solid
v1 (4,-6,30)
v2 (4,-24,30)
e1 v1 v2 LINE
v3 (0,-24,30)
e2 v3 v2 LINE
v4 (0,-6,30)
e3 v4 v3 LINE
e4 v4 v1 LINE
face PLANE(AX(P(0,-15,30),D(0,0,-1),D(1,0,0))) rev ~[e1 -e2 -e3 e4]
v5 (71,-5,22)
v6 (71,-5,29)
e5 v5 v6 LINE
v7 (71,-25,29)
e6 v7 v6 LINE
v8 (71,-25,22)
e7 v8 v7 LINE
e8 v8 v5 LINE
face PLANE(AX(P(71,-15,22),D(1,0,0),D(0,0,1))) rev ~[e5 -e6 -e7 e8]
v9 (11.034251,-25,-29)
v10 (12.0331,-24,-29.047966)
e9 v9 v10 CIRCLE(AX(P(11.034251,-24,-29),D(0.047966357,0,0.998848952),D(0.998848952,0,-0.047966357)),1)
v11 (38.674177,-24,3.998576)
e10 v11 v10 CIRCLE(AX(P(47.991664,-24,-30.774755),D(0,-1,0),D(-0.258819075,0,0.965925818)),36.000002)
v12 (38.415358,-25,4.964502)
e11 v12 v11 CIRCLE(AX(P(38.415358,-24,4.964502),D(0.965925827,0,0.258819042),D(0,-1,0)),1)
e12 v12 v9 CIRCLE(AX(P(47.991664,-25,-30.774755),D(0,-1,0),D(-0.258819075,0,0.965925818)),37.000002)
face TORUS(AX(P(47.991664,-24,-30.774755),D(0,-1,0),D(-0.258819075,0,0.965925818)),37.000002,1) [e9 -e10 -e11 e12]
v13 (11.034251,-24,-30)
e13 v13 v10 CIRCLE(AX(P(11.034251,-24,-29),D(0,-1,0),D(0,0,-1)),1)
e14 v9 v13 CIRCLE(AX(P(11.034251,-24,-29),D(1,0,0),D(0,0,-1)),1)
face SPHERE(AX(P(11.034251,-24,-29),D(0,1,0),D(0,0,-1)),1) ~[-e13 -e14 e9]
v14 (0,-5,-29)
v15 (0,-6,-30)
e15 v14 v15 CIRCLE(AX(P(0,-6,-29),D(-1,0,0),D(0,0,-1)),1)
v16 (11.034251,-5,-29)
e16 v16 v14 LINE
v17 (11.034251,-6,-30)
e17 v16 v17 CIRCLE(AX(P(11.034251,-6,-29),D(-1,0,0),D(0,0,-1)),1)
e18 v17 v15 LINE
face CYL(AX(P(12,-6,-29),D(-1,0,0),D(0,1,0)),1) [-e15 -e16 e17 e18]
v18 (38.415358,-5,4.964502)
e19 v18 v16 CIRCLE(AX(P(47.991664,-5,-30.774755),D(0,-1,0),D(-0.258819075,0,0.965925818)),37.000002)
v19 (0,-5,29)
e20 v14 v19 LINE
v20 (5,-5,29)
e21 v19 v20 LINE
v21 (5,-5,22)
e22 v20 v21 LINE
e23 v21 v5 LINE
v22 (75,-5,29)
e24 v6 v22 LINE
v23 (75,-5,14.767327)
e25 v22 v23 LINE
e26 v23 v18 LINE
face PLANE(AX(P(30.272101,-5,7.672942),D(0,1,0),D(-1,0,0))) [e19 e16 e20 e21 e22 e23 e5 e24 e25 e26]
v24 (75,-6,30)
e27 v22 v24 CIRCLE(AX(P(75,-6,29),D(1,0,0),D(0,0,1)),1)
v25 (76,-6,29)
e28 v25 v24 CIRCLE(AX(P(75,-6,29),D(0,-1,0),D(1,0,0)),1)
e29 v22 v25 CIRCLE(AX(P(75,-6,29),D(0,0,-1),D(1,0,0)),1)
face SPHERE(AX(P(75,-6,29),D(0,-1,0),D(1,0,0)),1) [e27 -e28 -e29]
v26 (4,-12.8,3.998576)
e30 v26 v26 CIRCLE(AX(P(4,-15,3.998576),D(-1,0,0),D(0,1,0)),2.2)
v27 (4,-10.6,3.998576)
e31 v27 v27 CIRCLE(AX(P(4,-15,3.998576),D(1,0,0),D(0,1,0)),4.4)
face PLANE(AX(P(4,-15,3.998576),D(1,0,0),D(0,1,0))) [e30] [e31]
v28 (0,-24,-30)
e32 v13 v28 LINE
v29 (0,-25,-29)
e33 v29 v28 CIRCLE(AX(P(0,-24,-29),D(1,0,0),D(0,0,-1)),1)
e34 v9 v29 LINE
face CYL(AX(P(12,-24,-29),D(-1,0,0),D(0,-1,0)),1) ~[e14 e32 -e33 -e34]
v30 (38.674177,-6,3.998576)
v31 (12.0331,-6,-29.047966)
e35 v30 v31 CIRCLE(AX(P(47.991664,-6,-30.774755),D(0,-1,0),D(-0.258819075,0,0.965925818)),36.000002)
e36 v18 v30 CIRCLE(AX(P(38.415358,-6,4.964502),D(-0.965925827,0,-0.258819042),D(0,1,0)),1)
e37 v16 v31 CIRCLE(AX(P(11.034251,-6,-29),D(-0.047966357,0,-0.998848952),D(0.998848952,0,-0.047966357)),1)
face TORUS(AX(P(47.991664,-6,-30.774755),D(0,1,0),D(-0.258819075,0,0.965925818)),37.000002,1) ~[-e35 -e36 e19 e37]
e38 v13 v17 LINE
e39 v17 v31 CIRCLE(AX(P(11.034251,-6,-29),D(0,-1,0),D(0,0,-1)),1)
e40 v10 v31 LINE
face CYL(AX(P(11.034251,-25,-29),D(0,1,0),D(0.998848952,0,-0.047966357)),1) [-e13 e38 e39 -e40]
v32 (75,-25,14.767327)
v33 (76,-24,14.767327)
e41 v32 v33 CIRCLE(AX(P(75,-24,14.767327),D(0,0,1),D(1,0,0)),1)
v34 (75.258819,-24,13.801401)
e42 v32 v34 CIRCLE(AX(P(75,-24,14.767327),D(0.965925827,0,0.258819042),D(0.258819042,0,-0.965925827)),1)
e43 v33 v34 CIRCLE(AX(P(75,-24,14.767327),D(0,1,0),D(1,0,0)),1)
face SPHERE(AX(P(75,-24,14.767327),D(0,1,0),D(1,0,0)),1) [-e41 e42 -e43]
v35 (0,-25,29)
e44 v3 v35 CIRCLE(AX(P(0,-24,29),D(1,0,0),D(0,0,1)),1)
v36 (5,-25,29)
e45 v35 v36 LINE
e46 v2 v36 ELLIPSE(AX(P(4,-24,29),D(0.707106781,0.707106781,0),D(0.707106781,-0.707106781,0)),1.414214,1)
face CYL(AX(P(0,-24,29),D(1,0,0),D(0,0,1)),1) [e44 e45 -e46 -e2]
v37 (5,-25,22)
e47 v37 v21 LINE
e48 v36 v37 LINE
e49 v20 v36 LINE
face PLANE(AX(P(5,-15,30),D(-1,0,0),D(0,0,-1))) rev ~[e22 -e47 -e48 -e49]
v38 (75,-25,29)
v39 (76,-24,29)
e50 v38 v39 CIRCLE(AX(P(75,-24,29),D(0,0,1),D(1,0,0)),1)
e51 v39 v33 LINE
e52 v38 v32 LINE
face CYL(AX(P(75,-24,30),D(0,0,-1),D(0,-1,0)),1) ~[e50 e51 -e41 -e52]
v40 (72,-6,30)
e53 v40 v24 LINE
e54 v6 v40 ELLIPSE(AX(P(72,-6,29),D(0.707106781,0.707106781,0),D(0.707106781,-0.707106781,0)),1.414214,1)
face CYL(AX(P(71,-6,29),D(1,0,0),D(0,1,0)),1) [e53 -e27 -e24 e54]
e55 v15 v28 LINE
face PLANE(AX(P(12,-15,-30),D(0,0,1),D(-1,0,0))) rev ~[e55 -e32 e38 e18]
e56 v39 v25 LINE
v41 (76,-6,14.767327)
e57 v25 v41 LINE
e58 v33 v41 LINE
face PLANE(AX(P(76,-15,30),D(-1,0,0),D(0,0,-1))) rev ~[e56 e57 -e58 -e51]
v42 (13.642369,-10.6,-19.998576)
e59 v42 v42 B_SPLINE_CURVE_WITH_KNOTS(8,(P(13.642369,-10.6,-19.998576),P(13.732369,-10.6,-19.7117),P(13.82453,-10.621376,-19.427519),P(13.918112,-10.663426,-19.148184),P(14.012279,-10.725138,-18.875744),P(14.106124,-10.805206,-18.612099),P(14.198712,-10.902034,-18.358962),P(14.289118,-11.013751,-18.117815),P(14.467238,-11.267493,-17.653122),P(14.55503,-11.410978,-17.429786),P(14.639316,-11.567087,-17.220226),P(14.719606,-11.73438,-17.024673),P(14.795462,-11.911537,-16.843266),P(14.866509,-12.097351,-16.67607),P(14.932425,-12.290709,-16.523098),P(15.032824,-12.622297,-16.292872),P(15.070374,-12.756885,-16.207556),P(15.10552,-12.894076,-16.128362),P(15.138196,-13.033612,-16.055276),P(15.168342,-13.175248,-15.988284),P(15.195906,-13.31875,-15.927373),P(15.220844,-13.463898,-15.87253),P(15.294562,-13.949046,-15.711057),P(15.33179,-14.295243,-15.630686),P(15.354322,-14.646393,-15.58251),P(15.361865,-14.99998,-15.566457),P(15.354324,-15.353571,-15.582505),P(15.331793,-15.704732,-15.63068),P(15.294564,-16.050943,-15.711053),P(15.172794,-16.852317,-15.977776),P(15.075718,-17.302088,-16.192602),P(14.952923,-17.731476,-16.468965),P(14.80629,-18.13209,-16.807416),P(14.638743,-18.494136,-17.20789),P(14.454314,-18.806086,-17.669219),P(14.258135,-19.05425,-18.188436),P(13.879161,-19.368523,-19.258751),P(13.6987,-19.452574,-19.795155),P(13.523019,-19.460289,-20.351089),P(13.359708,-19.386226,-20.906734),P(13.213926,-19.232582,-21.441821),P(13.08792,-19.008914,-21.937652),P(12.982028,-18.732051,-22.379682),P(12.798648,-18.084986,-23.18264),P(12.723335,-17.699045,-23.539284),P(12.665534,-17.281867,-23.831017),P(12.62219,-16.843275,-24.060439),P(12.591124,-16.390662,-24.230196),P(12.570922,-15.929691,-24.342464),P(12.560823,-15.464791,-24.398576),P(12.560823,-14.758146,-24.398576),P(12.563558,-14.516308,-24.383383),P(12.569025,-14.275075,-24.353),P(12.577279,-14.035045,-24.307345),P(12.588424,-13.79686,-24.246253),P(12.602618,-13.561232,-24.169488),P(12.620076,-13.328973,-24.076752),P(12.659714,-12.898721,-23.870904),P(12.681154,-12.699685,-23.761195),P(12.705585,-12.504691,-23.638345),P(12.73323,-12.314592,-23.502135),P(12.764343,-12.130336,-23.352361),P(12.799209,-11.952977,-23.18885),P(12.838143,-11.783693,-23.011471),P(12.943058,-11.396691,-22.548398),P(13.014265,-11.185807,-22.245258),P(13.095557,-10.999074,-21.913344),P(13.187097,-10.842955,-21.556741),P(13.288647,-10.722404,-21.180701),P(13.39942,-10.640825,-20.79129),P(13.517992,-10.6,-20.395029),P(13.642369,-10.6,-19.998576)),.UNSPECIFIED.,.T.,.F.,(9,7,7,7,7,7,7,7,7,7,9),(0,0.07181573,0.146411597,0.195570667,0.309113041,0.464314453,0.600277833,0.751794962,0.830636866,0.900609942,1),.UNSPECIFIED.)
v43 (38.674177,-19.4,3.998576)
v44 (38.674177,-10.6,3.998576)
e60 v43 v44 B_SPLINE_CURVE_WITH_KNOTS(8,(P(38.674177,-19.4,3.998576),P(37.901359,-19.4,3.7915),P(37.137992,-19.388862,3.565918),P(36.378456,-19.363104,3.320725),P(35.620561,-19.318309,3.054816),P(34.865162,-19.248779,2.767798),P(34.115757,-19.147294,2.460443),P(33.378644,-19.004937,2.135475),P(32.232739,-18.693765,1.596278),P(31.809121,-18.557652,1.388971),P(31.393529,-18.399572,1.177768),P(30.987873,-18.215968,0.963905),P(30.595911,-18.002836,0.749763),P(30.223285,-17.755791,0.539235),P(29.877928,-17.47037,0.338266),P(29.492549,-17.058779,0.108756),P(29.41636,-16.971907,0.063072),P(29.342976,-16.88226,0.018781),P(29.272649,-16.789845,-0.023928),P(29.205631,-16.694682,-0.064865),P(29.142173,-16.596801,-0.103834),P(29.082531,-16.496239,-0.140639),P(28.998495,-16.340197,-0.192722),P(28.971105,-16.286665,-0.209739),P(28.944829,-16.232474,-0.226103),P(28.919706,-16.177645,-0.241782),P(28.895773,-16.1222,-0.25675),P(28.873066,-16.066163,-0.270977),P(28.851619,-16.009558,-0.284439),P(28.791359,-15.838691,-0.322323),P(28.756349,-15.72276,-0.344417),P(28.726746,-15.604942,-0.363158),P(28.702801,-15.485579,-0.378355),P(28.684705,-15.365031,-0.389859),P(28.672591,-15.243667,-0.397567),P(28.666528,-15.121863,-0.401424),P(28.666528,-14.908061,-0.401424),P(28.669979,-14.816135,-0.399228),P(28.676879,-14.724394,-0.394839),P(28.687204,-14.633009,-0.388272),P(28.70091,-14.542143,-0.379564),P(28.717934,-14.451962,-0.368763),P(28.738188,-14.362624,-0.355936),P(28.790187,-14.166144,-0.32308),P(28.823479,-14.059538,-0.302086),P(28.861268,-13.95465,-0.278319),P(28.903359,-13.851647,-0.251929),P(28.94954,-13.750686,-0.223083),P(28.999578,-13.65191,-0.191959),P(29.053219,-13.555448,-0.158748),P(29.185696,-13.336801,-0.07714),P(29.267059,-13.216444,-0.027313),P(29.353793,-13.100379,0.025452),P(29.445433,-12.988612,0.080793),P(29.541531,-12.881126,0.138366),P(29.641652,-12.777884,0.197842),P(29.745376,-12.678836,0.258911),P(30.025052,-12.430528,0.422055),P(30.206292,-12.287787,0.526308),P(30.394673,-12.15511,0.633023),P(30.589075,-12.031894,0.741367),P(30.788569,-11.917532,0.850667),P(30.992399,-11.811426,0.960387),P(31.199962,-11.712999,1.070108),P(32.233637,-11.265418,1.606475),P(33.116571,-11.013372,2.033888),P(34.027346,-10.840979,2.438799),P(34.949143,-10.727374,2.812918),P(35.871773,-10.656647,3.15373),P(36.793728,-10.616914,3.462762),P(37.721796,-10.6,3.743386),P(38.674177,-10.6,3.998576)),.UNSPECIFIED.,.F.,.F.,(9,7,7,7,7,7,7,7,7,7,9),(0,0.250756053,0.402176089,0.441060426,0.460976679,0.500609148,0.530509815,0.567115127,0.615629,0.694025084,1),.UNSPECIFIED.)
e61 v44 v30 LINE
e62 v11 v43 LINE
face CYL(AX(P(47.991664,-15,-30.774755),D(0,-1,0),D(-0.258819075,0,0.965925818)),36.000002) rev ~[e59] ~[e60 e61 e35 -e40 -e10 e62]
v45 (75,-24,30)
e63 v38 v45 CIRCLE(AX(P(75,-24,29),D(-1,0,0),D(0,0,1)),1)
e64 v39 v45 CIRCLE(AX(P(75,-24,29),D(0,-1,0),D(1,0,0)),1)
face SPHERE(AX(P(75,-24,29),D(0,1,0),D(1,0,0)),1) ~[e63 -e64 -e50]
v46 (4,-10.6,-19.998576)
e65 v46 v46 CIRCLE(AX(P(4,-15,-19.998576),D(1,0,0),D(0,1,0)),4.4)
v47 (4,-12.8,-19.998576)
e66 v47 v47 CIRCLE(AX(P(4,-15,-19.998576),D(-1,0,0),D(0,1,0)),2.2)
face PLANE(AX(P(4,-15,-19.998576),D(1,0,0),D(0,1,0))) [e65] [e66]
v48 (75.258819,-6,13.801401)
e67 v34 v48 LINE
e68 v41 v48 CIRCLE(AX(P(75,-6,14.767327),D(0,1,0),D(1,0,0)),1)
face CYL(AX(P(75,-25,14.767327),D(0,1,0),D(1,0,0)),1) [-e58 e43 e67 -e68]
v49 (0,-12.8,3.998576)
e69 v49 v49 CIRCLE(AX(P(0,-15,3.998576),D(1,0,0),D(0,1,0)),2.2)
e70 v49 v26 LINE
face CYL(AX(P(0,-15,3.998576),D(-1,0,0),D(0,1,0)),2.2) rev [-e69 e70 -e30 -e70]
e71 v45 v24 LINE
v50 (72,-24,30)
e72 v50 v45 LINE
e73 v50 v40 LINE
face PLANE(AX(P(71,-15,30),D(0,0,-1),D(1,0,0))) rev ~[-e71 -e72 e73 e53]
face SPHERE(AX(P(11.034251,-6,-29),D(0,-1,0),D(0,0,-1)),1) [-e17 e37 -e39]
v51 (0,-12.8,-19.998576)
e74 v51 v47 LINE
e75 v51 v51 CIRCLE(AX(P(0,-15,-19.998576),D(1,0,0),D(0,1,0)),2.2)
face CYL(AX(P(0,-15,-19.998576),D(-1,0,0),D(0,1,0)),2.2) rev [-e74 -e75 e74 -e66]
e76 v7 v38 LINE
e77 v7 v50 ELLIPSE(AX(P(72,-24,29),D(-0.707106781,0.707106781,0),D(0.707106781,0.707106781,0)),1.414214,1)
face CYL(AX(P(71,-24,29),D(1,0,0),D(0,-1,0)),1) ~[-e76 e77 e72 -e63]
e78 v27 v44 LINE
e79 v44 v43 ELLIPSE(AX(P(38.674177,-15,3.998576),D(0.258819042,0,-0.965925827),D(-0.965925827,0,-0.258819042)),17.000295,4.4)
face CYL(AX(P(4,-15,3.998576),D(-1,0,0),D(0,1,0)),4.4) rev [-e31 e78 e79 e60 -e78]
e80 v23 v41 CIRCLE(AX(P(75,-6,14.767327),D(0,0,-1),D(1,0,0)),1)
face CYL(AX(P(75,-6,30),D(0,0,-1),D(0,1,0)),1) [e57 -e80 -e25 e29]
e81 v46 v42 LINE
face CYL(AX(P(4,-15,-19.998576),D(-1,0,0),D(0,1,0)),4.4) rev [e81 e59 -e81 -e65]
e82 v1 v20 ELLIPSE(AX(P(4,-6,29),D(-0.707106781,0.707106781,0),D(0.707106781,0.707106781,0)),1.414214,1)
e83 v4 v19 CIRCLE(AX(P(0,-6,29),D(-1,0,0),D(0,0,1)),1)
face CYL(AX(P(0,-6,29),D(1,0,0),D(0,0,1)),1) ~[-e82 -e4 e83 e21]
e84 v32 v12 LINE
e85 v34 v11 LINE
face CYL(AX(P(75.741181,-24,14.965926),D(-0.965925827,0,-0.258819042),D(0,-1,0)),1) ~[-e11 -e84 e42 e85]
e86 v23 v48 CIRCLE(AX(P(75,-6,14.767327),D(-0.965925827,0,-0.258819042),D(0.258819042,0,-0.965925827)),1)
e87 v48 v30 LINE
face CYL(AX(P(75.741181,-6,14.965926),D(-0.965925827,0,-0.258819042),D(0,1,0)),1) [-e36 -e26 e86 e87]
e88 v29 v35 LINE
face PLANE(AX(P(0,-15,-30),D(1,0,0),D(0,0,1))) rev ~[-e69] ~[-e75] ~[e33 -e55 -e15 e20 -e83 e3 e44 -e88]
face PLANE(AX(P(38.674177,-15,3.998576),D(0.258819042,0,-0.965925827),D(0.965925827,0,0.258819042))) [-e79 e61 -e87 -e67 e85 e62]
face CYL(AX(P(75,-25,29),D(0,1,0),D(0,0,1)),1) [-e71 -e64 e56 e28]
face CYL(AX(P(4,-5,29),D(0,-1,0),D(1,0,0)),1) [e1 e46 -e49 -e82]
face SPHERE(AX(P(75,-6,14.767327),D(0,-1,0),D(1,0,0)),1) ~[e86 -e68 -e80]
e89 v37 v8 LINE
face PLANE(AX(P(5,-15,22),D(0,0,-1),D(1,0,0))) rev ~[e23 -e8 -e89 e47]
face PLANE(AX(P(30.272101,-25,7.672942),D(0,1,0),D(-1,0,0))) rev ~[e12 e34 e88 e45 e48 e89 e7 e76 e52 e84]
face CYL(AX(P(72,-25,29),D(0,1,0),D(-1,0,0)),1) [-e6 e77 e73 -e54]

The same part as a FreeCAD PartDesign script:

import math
import FreeCAD as App
import Part
import Sketcher
Q = App.Units.Quantity


def edges_at(feature, points):
    """Names of the edges that pass closest to the given points."""
    edges = feature.Shape.Edges
    near = lambda p: min(range(len(edges)), key=lambda i: edges[i].distToShape(Part.Vertex(*p))[0])
    return sorted({f"Edge{near(p) + 1}" for p in points})

doc = App.newDocument("Part")
params = doc.addObject("Spreadsheet::Sheet", "Params")
for row, (alias, value) in enumerate([
    ("sketch1_radius", "36.000002 mm"),
    ("sketch1_width", "5 mm"),
    ("sketch1_width2", "12 mm"),
    ("sketch1_width3", "66 mm"),
    ("sketch1_height", "8 mm"),
    ("pad1_length", "20 mm"),
    ("sketch2_diameter", "4.4 mm"),
    ("sketch3_diameter", "8.8 mm"),
    ("fillet_radius", "1 mm"),
], start=1):
    params.set(f"A{row}", alias)
    params.set(f"B{row}", "=" + value)
    params.setAlias(f"B{row}", alias)

body = doc.addObject("PartDesign::Body", "Body")

sketch1 = body.newObject("Sketcher::SketchObject", "Sketch")
sketch1.AttachmentSupport = (doc.getObject("XZ_Plane"), [""])
sketch1.MapMode = "FlatFace"
sketch1.addGeometry(Part.LineSegment(App.Vector(5, 22, 0), App.Vector(5, 30, 0)), False)
sketch1.addGeometry(Part.LineSegment(App.Vector(5, 30, 0), App.Vector(0, 30, 0)), False)
sketch1.addGeometry(Part.LineSegment(App.Vector(0, 30, 0), App.Vector(0, -30, 0)), False)
sketch1.addGeometry(Part.LineSegment(App.Vector(0, -30, 0), App.Vector(12, -30, 0)), False)
sketch1.addGeometry(Part.ArcOfCircle(Part.Circle(App.Vector(48, -31, 0), App.Vector(0, 0, 1), 36), math.radians(105), math.radians(179)), False)
sketch1.addGeometry(Part.LineSegment(App.Vector(39, 4, 0), App.Vector(76, 14, 0)), False)
sketch1.addGeometry(Part.LineSegment(App.Vector(76, 14, 0), App.Vector(76, 30, 0)), False)
sketch1.addGeometry(Part.LineSegment(App.Vector(76, 30, 0), App.Vector(71, 30, 0)), False)
sketch1.addGeometry(Part.LineSegment(App.Vector(71, 30, 0), App.Vector(71, 22, 0)), False)
sketch1.addGeometry(Part.LineSegment(App.Vector(71, 22, 0), App.Vector(5, 22, 0)), False)
sketch1.addConstraint(Sketcher.Constraint("Coincident", 0, 2, 1, 1))
sketch1.addConstraint(Sketcher.Constraint("Coincident", 1, 2, 2, 1))
sketch1.addConstraint(Sketcher.Constraint("Coincident", 2, 2, 3, 1))
sketch1.addConstraint(Sketcher.Constraint("Coincident", 3, 2, 4, 2))
sketch1.addConstraint(Sketcher.Constraint("Tangent", 4, 1, 5, 1))
sketch1.addConstraint(Sketcher.Constraint("Coincident", 5, 2, 6, 1))
sketch1.addConstraint(Sketcher.Constraint("Coincident", 6, 2, 7, 1))
sketch1.addConstraint(Sketcher.Constraint("Coincident", 7, 2, 8, 1))
sketch1.addConstraint(Sketcher.Constraint("Coincident", 8, 2, 9, 1))
sketch1.addConstraint(Sketcher.Constraint("Coincident", 9, 2, 0, 1))
sketch1.addConstraint(Sketcher.Constraint("Vertical", 0))
sketch1.addConstraint(Sketcher.Constraint("Horizontal", 1))
sketch1.addConstraint(Sketcher.Constraint("Vertical", 2))
sketch1.addConstraint(Sketcher.Constraint("Horizontal", 3))
sketch1.addConstraint(Sketcher.Constraint("Vertical", 6))
sketch1.addConstraint(Sketcher.Constraint("Horizontal", 7))
sketch1.addConstraint(Sketcher.Constraint("Vertical", 8))
sketch1.addConstraint(Sketcher.Constraint("Horizontal", 9))
sketch1.addConstraint(Sketcher.Constraint("Symmetric", 1, 2, 2, 2, -1, 1))
sketch1.addConstraint(Sketcher.Constraint("Horizontal", 1, 2, 6, 2))
sketch1.addConstraint(Sketcher.Constraint("Equal", 1, 7))
sketch1.addConstraint(Sketcher.Constraint("Radius", 4, 36.000002))
sketch1.addConstraint(Sketcher.Constraint("DistanceX", 1, 2, 1, 1, 5.0))
sketch1.addConstraint(Sketcher.Constraint("DistanceX", 3, 1, 3, 2, 12.0))
sketch1.addConstraint(Sketcher.Constraint("DistanceX", 9, 2, 9, 1, 66.0))
sketch1.addConstraint(Sketcher.Constraint("DistanceY", 0, 1, 0, 2, 8.0))
sketch1.addConstraint(Sketcher.Constraint("DistanceY", 2, 2, 2, 1, 60.0))
sketch1.addConstraint(Sketcher.Constraint("DistanceY", 6, 1, 6, 2, 16.0))
sketch1.addConstraint(Sketcher.Constraint("Angle", 5, Q("15 deg")))
sketch1.setExpression("Constraints[21]", "Params.sketch1_radius")
sketch1.setExpression("Constraints[22]", "Params.sketch1_width")
sketch1.setExpression("Constraints[23]", "Params.sketch1_width2")
sketch1.setExpression("Constraints[24]", "Params.sketch1_width3")
sketch1.setExpression("Constraints[25]", "Params.sketch1_height")
pad1 = body.newObject("PartDesign::Pad", "Pad")
pad1.Profile = sketch1
pad1.setExpression("Length", "Params.pad1_length")
pad1.Midplane = True

sketch2 = body.newObject("Sketcher::SketchObject", "Sketch001")
sketch2.AttachmentSupport = (doc.getObject("YZ_Plane"), [""])
sketch2.MapMode = "FlatFace"
sketch2.addGeometry(Part.Circle(App.Vector(0, 4, 0), App.Vector(0, 0, 1), 2.2), False)
sketch2.addGeometry(Part.Circle(App.Vector(0, -20, 0), App.Vector(0, 0, 1), 2.2), False)
sketch2.addConstraint(Sketcher.Constraint("Equal", 0, 1))
sketch2.addConstraint(Sketcher.Constraint("PointOnObject", 0, 3, -2))
sketch2.addConstraint(Sketcher.Constraint("PointOnObject", 1, 3, -2))
sketch2.addConstraint(Sketcher.Constraint("Diameter", 0, 4.4))
sketch2.addConstraint(Sketcher.Constraint("DistanceY", 1, 3, 0, 3, 23.997152))
sketch2.addConstraint(Sketcher.Constraint("DistanceY", -1, 1, 0, 3, 3.998576))
sketch2.setExpression("Constraints[3]", "Params.sketch2_diameter")
pocket1 = body.newObject("PartDesign::Pocket", "Pocket")
pocket1.Profile = sketch2
pocket1.Type = "ThroughAll"
pocket1.Reversed = True

sketch3 = body.newObject("Sketcher::SketchObject", "Sketch002")
sketch3.AttachmentSupport = (doc.getObject("YZ_Plane"), [""])
sketch3.MapMode = "FlatFace"
sketch3.AttachmentOffset = App.Placement(App.Vector(0, 0, 4), App.Rotation())
sketch3.addGeometry(Part.Circle(App.Vector(0, 4, 0), App.Vector(0, 0, 1), 4.4), False)
sketch3.addGeometry(Part.Circle(App.Vector(0, -20, 0), App.Vector(0, 0, 1), 4.4), False)
sketch3.addConstraint(Sketcher.Constraint("Equal", 0, 1))
sketch3.addConstraint(Sketcher.Constraint("PointOnObject", 0, 3, -2))
sketch3.addConstraint(Sketcher.Constraint("PointOnObject", 1, 3, -2))
sketch3.addConstraint(Sketcher.Constraint("Diameter", 0, 8.8))
sketch3.addConstraint(Sketcher.Constraint("DistanceY", 1, 3, 0, 3, 23.997152))
sketch3.addConstraint(Sketcher.Constraint("DistanceY", -1, 1, 0, 3, 3.998576))
sketch3.setExpression("Constraints[3]", "Params.sketch3_diameter")
pocket2 = body.newObject("PartDesign::Pocket", "Pocket001")
pocket2.Profile = sketch3
pocket2.Type = "ThroughAll"
pocket2.Reversed = True
doc.recompute()

fillet = body.newObject("PartDesign::Fillet", "Fillet")
fillet.Base = (pocket2, edges_at(pocket2, [
    (76, 0, 30),
    (76, 0, 14),
    (76, 10, 22),
    (76, -10, 22),
    (73.5, -10, 30),
    (73.5, 10, 30),
    (19.668, -10, -8.553),
    (19.668, 10, -8.553),
    (12, 0, -30),
    (6, -10, -30),
    (6, 10, -30),
    (2.5, 10, 30),
    (2.5, -10, 30),
    (5, 0, 30),
    (71, 0, 30),
]))
fillet.setExpression("Radius", "Params.fillet_radius")
body2 = doc.addObject("PartDesign::Body", "Body001")
doc.recompute()

body.Placement = App.Placement(App.Vector(0, -15, 0), App.Rotation(App.Vector(0, 0, 1), 0))
boolean = body2.newObject("PartDesign::Boolean", "Boolean")
boolean.Type = "Fuse"
boolean.addObjects([body])

doc.recompute()
